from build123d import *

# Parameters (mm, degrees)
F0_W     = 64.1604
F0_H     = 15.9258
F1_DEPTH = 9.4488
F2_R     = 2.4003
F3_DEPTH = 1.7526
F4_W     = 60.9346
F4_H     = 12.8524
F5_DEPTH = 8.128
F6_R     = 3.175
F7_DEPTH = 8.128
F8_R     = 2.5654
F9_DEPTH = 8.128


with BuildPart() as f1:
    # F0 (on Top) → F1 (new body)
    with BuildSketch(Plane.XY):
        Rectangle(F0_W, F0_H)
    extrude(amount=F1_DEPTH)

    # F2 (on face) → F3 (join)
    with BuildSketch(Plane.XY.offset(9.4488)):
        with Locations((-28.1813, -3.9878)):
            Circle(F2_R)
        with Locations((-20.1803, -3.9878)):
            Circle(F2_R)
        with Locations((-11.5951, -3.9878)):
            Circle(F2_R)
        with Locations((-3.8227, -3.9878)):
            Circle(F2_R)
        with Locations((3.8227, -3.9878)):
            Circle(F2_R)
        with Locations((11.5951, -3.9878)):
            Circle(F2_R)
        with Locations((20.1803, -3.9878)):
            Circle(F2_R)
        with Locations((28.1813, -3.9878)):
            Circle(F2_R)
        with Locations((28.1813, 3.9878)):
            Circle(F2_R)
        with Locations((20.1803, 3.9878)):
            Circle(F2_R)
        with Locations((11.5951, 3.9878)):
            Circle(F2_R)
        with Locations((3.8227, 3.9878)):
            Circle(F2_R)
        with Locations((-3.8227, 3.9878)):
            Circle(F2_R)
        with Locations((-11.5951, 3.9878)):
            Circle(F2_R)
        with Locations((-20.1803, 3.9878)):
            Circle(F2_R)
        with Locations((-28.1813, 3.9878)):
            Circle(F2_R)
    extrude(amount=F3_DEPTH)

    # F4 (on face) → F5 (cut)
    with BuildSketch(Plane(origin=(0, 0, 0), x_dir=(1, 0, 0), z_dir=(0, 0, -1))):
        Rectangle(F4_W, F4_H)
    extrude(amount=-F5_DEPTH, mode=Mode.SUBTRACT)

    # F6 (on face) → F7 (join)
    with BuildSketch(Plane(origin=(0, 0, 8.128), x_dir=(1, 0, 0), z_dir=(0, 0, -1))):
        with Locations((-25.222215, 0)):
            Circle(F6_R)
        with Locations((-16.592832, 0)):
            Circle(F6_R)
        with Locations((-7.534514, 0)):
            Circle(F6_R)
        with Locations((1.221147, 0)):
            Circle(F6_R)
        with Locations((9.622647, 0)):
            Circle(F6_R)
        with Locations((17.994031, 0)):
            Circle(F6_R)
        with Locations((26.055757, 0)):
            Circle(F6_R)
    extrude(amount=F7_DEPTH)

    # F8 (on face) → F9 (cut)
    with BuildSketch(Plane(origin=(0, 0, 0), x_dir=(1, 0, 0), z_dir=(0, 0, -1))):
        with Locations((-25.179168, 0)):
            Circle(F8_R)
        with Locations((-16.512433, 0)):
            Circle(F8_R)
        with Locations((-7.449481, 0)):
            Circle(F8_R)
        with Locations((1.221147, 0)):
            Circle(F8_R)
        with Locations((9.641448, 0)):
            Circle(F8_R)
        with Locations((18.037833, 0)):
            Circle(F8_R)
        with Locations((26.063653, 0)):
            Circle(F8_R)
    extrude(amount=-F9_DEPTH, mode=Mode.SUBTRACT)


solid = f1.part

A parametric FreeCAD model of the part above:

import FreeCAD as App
import Part
import Sketcher

V = App.Vector
Q = App.Units.Quantity

doc = App.newDocument("Part")
body = doc.addObject("PartDesign::Body", "Body")

sketch1 = body.newObject("Sketcher::SketchObject", "Sketch")
sketch1.AttachmentSupport = (doc.getObject("XY_Plane"), [""])
sketch1.MapMode = "FlatFace"
sketch1.addGeometry([
    Part.LineSegment(V(-32.0802, 7.9629, 0), V(-32.0802, -7.9629, 0)),
    Part.LineSegment(V(-32.0802, -7.9629, 0), V(32.0802, -7.9629, 0)),
    Part.LineSegment(V(32.0802, -7.9629, 0), V(32.0802, 7.9629, 0)),
    Part.LineSegment(V(32.0802, 7.9629, 0), V(-32.0802, 7.9629, 0)),
], False)
sketch1.addConstraint([
    Sketcher.Constraint("Coincident", 0, 2, 1, 1),
    Sketcher.Constraint("Coincident", 1, 2, 2, 1),
    Sketcher.Constraint("Coincident", 2, 2, 3, 1),
    Sketcher.Constraint("Coincident", 3, 2, 0, 1),
    Sketcher.Constraint("Vertical", 0),
    Sketcher.Constraint("Horizontal", 1),
    Sketcher.Constraint("Vertical", 2),
    Sketcher.Constraint("Horizontal", 3),
    Sketcher.Constraint("Symmetric", 0, 2, 2, 2, -1, 1),
    Sketcher.Constraint("DistanceX", 1, 1, 1, 2, Q("2.526 in")),
    Sketcher.Constraint("DistanceY", 0, 2, 0, 1, Q("0.627 in")),
])
pad1 = body.newObject("PartDesign::Pad", "Pad")
pad1.Profile = sketch1
pad1.Length = Q("0.372 in")

sketch2 = body.newObject("Sketcher::SketchObject", "Sketch001")
sketch2.AttachmentSupport = (doc.getObject("XY_Plane"), [""])
sketch2.MapMode = "FlatFace"
sketch2.AttachmentOffset = App.Placement(V(0, 0, 0.372 * 25.4), App.Rotation())
sketch2.addGeometry([
    Part.Circle(V(-28.1813, -3.9878, 0), V(0, 0, 1), 2.4003),
    Part.Circle(V(-20.1803, -3.9878, 0), V(0, 0, 1), 2.4003),
    Part.Circle(V(-11.5951, -3.9878, 0), V(0, 0, 1), 2.4003),
    Part.Circle(V(-3.8227, -3.9878, 0), V(0, 0, 1), 2.4003),
    Part.Circle(V(3.8227, -3.9878, 0), V(0, 0, 1), 2.4003),
    Part.Circle(V(11.5951, -3.9878, 0), V(0, 0, 1), 2.4003),
    Part.Circle(V(20.1803, -3.9878, 0), V(0, 0, 1), 2.4003),
    Part.Circle(V(28.1813, -3.9878, 0), V(0, 0, 1), 2.4003),
    Part.Circle(V(28.1813, 3.9878, 0), V(0, 0, 1), 2.4003),
    Part.Circle(V(20.1803, 3.9878, 0), V(0, 0, 1), 2.4003),
    Part.Circle(V(11.5951, 3.9878, 0), V(0, 0, 1), 2.4003),
    Part.Circle(V(3.8227, 3.9878, 0), V(0, 0, 1), 2.4003),
    Part.Circle(V(-3.8227, 3.9878, 0), V(0, 0, 1), 2.4003),
    Part.Circle(V(-11.5951, 3.9878, 0), V(0, 0, 1), 2.4003),
    Part.Circle(V(-20.1803, 3.9878, 0), V(0, 0, 1), 2.4003),
    Part.Circle(V(-28.1813, 3.9878, 0), V(0, 0, 1), 2.4003),
], False)
sketch2.addConstraint([
    Sketcher.Constraint("Equal", 0, 1),
    Sketcher.Constraint("Equal", 1, 2),
    Sketcher.Constraint("Equal", 2, 3),
    Sketcher.Constraint("Equal", 3, 4),
    Sketcher.Constraint("Equal", 4, 5),
    Sketcher.Constraint("Equal", 5, 6),
    Sketcher.Constraint("Equal", 6, 7),
    Sketcher.Constraint("Equal", 7, 8),
    Sketcher.Constraint("Equal", 8, 9),
    Sketcher.Constraint("Equal", 9, 10),
    Sketcher.Constraint("Equal", 10, 11),
    Sketcher.Constraint("Equal", 11, 12),
    Sketcher.Constraint("Equal", 12, 13),
    Sketcher.Constraint("Equal", 13, 14),
    Sketcher.Constraint("Equal", 14, 15),
    Sketcher.Constraint("Symmetric", 0, 3, 8, 3, -1, 1),
    Sketcher.Constraint("Symmetric", 1, 3, 9, 3, -1, 1),
    Sketcher.Constraint("Symmetric", 2, 3, 10, 3, -1, 1),
    Sketcher.Constraint("Symmetric", 3, 3, 11, 3, -1, 1),
    Sketcher.Constraint("Symmetric", 4, 3, 12, 3, -1, 1),
    Sketcher.Constraint("Symmetric", 5, 3, 13, 3, -1, 1),
    Sketcher.Constraint("Symmetric", 6, 3, 14, 3, -1, 1),
    Sketcher.Constraint("Symmetric", 7, 3, 15, 3, -1, 1),
    Sketcher.Constraint("Symmetric", 3, 3, 4, 3, -2),
    Sketcher.Constraint("Symmetric", 2, 3, 5, 3, -2),
    Sketcher.Constraint("Symmetric", 1, 3, 6, 3, -2),
    Sketcher.Constraint("Symmetric", 0, 3, 7, 3, -2),
    Sketcher.Constraint("Horizontal", 0, 3, 1, 3),
    Sketcher.Constraint("Horizontal", 1, 3, 2, 3),
    Sketcher.Constraint("Horizontal", 2, 3, 3, 3),
    Sketcher.Constraint("Diameter", 0, Q("0.189 in")),
    Sketcher.Constraint("DistanceX", 0, 3, 4, 3, Q("1.26 in")),
    Sketcher.Constraint("DistanceY", 0, 3, -1, 1, Q("0.157 in")),
    Sketcher.Constraint("DistanceX", 0, 3, 1, 3, Q("0.315 in")),
    Sketcher.Constraint("DistanceX", 1, 3, 2, 3, Q("0.338 in")),
    Sketcher.Constraint("DistanceX", 2, 3, 3, 3, Q("0.306 in")),
])
pad2 = body.newObject("PartDesign::Pad", "Pad001")
pad2.Profile = sketch2
pad2.Length = Q("0.069 in")

sketch3 = body.newObject("Sketcher::SketchObject", "Sketch002")
sketch3.AttachmentSupport = (doc.getObject("XY_Plane"), [""])
sketch3.MapMode = "FlatFace"
sketch3.addGeometry([
    Part.LineSegment(V(-30.4673, -6.4262, 0), V(-30.4673, 6.4262, 0)),
    Part.LineSegment(V(-30.4673, 6.4262, 0), V(30.4673, 6.4262, 0)),
    Part.LineSegment(V(30.4673, 6.4262, 0), V(30.4673, -6.4262, 0)),
    Part.LineSegment(V(30.4673, -6.4262, 0), V(-30.4673, -6.4262, 0)),
], False)
sketch3.addConstraint([
    Sketcher.Constraint("Coincident", 0, 2, 1, 1),
    Sketcher.Constraint("Coincident", 1, 2, 2, 1),
    Sketcher.Constraint("Coincident", 2, 2, 3, 1),
    Sketcher.Constraint("Coincident", 3, 2, 0, 1),
    Sketcher.Constraint("Vertical", 0),
    Sketcher.Constraint("Horizontal", 1),
    Sketcher.Constraint("Vertical", 2),
    Sketcher.Constraint("Horizontal", 3),
    Sketcher.Constraint("Symmetric", 0, 2, 2, 2, -1, 1),
    Sketcher.Constraint("DistanceX", 1, 1, 1, 2, Q("2.399 in")),
    Sketcher.Constraint("DistanceY", 0, 1, 0, 2, Q("0.506 in")),
])
pocket1 = body.newObject("PartDesign::Pocket", "Pocket")
pocket1.Profile = sketch3
pocket1.Length = Q("0.32 in")
pocket1.Reversed = True

sketch4 = body.newObject("Sketcher::SketchObject", "Sketch003")
sketch4.AttachmentSupport = (doc.getObject("XY_Plane"), [""])
sketch4.MapMode = "FlatFace"
sketch4.AttachmentOffset = App.Placement(V(0, 0, 0.32 * 25.4), App.Rotation())
sketch4.addGeometry([
    Part.Circle(V(-25.222215, 0, 0), V(0, 0, 1), 3.175),
    Part.Circle(V(-16.592832, 0, 0), V(0, 0, 1), 3.175),
    Part.Circle(V(-7.534514, 0, 0), V(0, 0, 1), 3.175),
    Part.Circle(V(1.221147, 0, 0), V(0, 0, 1), 3.175),
    Part.Circle(V(9.622647, 0, 0), V(0, 0, 1), 3.175),
    Part.Circle(V(17.994031, 0, 0), V(0, 0, 1), 3.175),
    Part.Circle(V(26.055757, 0, 0), V(0, 0, 1), 3.175),
], False)
sketch4.addConstraint([
    Sketcher.Constraint("Equal", 0, 1),
    Sketcher.Constraint("Equal", 1, 2),
    Sketcher.Constraint("Equal", 2, 3),
    Sketcher.Constraint("Equal", 3, 4),
    Sketcher.Constraint("Equal", 4, 5),
    Sketcher.Constraint("Equal", 5, 6),
    Sketcher.Constraint("PointOnObject", 0, 3, -1),
    Sketcher.Constraint("PointOnObject", 1, 3, -1),
    Sketcher.Constraint("PointOnObject", 2, 3, -1),
    Sketcher.Constraint("PointOnObject", 3, 3, -1),
    Sketcher.Constraint("PointOnObject", 4, 3, -1),
    Sketcher.Constraint("PointOnObject", 5, 3, -1),
    Sketcher.Constraint("PointOnObject", 6, 3, -1),
    Sketcher.Constraint("Diameter", 0, Q("0.25 in")),
    Sketcher.Constraint("DistanceX", 0, 3, 2, 3, Q("17.687701 mm")),
    Sketcher.Constraint("DistanceX", 3, 3, 4, 3, Q("8.4015 mm")),
    Sketcher.Constraint("DistanceX", -1, 1, 5, 3, Q("17.994031 mm")),
    Sketcher.Constraint("DistanceX", 1, 3, 2, 3, Q("9.058318 mm")),
    Sketcher.Constraint("DistanceX", 2, 3, 3, 3, Q("8.755661 mm")),
    Sketcher.Constraint("DistanceX", 4, 3, 6, 3, Q("16.43311 mm")),
    Sketcher.Constraint("DistanceX", 0, 3, -1, 1, Q("25.222215 mm")),
])
pad3 = body.newObject("PartDesign::Pad", "Pad002")
pad3.Profile = sketch4
pad3.Length = Q("0.32 in")
pad3.Reversed = True

sketch5 = body.newObject("Sketcher::SketchObject", "Sketch004")
sketch5.AttachmentSupport = (doc.getObject("XY_Plane"), [""])
sketch5.MapMode = "FlatFace"
sketch5.addGeometry([
    Part.Circle(V(-25.179168, 0, 0), V(0, 0, 1), 2.5654),
    Part.Circle(V(-16.512433, 0, 0), V(0, 0, 1), 2.5654),
    Part.Circle(V(-7.449481, 0, 0), V(0, 0, 1), 2.5654),
    Part.Circle(V(1.221147, 0, 0), V(0, 0, 1), 2.5654),
    Part.Circle(V(9.641448, 0, 0), V(0, 0, 1), 2.5654),
    Part.Circle(V(18.037833, 0, 0), V(0, 0, 1), 2.5654),
    Part.Circle(V(26.063653, 0, 0), V(0, 0, 1), 2.5654),
], False)
sketch5.addConstraint([
    Sketcher.Constraint("Equal", 0, 1),
    Sketcher.Constraint("Equal", 1, 2),
    Sketcher.Constraint("Equal", 2, 3),
    Sketcher.Constraint("Equal", 3, 4),
    Sketcher.Constraint("Equal", 4, 5),
    Sketcher.Constraint("Equal", 5, 6),
    Sketcher.Constraint("PointOnObject", 0, 3, -1),
    Sketcher.Constraint("PointOnObject", 1, 3, -1),
    Sketcher.Constraint("PointOnObject", 2, 3, -1),
    Sketcher.Constraint("PointOnObject", 3, 3, -1),
    Sketcher.Constraint("PointOnObject", 4, 3, -1),
    Sketcher.Constraint("PointOnObject", 5, 3, -1),
    Sketcher.Constraint("PointOnObject", 6, 3, -1),
    Sketcher.Constraint("Diameter", 0, Q("0.202 in")),
    Sketcher.Constraint("DistanceX", 3, 3, 4, 3, Q("8.420301 mm")),
    Sketcher.Constraint("DistanceX", 0, 3, 5, 3, Q("43.217001 mm")),
    Sketcher.Constraint("DistanceX", 0, 3, -1, 1, Q("25.179168 mm")),
    Sketcher.Constraint("DistanceX", 2, 3, -1, 1, Q("7.449481 mm")),
    Sketcher.Constraint("DistanceX", 1, 3, 3, 3, Q("17.73358 mm")),
    Sketcher.Constraint("DistanceX", 2, 3, 4, 3, Q("17.090929 mm")),
    Sketcher.Constraint("DistanceX", 5, 3, 6, 3, Q("8.02582 mm")),
])
pocket2 = body.newObject("PartDesign::Pocket", "Pocket001")
pocket2.Profile = sketch5
pocket2.Length = Q("0.32 in")
pocket2.Reversed = True

doc.recompute()
